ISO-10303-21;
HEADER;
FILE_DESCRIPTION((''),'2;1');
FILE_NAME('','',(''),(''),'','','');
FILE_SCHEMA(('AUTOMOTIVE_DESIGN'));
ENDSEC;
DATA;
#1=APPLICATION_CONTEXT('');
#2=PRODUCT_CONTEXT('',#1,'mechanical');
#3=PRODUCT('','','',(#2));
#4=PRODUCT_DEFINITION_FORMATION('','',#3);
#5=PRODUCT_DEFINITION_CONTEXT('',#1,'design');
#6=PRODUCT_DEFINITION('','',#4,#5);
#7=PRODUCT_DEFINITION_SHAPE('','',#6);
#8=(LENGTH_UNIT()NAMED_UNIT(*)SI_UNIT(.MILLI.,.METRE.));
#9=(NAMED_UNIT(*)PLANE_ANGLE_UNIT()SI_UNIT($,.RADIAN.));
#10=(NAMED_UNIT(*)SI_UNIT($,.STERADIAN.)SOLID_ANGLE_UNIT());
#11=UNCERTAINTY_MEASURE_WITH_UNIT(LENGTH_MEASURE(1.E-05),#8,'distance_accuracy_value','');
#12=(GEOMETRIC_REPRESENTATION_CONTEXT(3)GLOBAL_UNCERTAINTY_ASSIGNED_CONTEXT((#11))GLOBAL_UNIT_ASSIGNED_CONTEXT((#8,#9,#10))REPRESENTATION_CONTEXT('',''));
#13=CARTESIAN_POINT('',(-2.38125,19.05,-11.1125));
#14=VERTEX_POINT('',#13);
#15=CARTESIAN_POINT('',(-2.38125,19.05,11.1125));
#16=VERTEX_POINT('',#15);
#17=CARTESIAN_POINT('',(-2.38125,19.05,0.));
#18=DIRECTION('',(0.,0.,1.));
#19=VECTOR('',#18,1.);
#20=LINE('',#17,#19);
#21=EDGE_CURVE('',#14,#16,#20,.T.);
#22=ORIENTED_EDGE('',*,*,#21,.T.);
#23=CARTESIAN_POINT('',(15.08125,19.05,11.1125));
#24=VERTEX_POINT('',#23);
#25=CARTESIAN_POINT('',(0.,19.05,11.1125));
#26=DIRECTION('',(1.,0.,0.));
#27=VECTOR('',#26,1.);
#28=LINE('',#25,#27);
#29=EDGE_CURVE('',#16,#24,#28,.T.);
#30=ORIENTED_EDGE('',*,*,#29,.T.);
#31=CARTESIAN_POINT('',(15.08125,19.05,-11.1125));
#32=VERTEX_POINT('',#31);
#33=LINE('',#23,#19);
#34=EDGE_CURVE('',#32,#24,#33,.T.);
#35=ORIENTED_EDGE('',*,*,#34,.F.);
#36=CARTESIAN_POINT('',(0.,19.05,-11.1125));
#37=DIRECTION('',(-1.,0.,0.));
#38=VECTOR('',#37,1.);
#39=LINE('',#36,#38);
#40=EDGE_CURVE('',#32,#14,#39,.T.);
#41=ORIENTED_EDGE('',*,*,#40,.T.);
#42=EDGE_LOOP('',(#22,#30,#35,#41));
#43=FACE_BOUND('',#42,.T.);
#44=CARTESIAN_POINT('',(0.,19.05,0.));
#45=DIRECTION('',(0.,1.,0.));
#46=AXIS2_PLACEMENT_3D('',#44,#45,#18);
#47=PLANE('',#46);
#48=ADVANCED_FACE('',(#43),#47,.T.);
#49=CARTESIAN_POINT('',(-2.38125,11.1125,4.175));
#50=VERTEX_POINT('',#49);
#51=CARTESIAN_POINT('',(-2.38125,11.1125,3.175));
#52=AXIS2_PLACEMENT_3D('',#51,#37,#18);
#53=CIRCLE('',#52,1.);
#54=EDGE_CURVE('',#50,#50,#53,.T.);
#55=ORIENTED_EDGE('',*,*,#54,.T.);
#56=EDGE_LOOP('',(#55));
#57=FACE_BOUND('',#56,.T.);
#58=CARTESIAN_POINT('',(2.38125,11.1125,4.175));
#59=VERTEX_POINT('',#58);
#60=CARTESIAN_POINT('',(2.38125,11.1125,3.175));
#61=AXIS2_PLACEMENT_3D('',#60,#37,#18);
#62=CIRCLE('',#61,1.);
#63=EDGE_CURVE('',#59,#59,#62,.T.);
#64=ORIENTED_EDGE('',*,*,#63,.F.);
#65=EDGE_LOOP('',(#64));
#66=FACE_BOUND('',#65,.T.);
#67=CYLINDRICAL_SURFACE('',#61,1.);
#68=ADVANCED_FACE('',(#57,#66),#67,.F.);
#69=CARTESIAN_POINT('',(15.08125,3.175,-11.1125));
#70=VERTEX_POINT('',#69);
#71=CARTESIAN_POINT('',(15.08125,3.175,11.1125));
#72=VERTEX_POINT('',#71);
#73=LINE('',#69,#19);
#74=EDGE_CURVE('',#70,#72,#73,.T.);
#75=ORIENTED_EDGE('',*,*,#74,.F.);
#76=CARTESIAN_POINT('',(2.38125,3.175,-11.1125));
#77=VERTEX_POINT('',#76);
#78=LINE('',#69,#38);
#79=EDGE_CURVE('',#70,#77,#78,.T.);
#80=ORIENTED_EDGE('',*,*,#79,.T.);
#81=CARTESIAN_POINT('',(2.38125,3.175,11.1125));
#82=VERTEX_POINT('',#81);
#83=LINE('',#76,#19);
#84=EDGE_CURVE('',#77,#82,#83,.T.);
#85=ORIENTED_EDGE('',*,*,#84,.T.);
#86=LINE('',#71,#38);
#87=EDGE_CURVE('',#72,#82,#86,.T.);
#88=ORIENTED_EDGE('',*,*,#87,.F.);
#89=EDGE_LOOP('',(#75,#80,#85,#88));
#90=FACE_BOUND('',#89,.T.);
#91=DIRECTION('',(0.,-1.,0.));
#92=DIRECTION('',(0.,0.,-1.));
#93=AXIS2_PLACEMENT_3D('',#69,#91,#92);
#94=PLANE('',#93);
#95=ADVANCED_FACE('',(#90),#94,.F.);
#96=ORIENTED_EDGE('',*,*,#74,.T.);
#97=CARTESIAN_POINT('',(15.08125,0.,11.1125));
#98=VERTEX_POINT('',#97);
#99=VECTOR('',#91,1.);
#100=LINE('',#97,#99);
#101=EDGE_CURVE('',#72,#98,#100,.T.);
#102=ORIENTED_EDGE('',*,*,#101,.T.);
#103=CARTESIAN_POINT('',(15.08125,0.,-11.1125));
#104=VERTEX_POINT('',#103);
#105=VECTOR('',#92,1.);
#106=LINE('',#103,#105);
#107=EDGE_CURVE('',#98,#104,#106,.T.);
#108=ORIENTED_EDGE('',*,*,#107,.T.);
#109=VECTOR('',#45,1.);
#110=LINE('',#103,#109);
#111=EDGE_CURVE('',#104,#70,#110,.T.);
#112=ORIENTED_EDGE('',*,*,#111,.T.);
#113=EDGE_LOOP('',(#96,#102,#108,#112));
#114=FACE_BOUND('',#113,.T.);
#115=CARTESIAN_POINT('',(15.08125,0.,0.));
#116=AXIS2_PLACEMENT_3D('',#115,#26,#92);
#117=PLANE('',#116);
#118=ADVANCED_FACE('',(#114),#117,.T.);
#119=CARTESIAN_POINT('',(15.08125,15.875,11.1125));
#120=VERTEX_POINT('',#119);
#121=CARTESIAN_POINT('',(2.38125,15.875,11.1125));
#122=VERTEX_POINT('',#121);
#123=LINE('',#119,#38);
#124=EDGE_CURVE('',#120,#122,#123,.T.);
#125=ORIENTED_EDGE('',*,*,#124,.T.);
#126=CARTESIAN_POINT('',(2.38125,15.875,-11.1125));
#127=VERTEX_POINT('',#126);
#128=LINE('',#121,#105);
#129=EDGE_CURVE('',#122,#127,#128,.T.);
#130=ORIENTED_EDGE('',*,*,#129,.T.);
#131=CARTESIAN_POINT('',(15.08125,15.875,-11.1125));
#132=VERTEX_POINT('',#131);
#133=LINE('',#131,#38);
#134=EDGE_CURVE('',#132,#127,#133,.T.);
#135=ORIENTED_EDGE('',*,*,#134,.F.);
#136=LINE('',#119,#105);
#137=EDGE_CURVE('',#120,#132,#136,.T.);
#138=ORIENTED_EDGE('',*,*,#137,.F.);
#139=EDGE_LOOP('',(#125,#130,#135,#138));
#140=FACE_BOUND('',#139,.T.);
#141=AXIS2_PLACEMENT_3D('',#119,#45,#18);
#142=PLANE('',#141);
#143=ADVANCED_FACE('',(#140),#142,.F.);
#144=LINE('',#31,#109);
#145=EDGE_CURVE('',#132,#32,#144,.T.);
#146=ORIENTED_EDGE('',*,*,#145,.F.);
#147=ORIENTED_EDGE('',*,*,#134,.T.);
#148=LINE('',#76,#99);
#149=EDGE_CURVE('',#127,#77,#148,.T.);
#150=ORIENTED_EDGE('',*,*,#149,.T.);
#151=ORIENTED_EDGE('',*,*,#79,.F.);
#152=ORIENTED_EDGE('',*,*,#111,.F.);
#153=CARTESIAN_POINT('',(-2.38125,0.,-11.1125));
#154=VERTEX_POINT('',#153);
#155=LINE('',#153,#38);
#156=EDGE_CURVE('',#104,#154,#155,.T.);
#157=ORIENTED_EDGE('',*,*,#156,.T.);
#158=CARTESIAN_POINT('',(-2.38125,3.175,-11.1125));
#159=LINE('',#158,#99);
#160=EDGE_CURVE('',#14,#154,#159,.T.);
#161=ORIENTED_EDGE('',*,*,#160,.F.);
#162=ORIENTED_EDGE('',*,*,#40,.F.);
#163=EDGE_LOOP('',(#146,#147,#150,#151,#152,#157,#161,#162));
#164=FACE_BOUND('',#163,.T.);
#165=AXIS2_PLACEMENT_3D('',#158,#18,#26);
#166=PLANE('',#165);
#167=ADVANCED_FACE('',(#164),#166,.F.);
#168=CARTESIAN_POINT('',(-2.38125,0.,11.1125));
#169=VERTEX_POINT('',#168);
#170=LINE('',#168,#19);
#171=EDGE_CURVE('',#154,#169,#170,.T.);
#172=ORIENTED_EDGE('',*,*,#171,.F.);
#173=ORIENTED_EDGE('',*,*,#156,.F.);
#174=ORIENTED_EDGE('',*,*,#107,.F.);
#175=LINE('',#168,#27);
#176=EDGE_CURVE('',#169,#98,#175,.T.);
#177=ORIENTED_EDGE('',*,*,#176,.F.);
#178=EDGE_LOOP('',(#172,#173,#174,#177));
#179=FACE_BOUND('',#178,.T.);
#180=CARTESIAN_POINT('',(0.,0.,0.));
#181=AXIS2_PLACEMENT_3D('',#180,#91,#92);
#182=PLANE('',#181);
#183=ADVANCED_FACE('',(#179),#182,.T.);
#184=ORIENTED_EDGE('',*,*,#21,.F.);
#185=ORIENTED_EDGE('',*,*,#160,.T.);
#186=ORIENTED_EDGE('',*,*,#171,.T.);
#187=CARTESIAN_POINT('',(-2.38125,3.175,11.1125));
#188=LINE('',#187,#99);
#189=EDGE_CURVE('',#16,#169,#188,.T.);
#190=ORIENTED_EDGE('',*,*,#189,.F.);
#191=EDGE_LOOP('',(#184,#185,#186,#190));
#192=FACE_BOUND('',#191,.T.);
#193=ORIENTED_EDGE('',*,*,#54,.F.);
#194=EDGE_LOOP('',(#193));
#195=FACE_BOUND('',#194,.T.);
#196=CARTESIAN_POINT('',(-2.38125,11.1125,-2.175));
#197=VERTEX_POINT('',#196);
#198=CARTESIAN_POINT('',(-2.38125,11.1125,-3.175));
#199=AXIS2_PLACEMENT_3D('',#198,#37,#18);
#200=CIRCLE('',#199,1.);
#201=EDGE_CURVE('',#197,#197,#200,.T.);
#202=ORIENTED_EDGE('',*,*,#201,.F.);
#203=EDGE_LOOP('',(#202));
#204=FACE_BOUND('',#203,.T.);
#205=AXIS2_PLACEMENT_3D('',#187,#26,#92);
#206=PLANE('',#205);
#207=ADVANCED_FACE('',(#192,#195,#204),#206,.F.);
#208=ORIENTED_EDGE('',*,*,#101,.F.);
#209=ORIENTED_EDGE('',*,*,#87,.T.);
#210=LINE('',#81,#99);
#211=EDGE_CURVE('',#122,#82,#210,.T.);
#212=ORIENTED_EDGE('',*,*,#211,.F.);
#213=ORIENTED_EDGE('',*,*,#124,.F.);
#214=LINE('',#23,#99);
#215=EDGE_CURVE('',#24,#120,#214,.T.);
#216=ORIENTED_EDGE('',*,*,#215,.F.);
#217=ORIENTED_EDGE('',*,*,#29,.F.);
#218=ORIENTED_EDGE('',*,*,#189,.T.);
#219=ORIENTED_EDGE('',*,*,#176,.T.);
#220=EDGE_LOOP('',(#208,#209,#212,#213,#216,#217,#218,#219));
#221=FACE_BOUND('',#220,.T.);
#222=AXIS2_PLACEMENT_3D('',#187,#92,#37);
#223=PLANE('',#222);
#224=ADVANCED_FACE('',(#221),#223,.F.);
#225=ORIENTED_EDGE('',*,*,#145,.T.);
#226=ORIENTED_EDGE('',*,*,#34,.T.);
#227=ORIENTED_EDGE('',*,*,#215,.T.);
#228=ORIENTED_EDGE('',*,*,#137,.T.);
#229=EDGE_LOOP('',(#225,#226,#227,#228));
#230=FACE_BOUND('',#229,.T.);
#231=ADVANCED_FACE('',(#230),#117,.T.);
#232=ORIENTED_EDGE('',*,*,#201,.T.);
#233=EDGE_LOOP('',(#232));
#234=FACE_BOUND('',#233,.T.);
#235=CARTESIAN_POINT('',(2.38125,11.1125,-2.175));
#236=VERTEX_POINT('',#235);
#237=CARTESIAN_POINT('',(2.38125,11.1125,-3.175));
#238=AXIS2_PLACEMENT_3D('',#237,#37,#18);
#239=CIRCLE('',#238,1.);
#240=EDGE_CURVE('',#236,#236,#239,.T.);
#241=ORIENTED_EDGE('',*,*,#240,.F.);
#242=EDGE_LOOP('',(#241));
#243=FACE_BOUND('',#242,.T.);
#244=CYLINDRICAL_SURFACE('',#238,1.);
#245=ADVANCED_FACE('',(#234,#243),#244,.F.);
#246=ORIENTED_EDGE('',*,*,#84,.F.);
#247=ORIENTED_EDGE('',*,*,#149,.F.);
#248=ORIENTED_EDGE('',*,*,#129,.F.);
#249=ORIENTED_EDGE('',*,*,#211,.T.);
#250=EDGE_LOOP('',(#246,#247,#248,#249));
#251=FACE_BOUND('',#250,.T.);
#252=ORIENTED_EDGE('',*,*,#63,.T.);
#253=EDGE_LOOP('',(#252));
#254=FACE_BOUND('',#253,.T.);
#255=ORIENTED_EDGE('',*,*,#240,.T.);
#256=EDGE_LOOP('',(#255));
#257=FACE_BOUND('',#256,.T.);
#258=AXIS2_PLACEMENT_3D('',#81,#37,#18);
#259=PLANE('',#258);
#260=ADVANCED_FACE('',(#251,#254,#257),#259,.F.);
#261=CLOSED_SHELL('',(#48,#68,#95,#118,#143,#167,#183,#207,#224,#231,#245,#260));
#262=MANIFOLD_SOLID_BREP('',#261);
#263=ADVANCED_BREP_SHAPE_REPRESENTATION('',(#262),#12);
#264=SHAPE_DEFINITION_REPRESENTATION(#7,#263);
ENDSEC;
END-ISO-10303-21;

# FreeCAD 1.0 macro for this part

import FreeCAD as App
import Part
import Sketcher

V = App.Vector
Q = App.Units.Quantity

doc = App.newDocument("Part")
body = doc.addObject("PartDesign::Body", "Body")

sketch1 = doc.addObject("Sketcher::SketchObject", "Sketch")
body.addObject(sketch1)
sketch1.AttachmentSupport = (doc.XZ_Plane, [""])
sketch1.MapMode = "FlatFace"
sketch1.addGeometry([
    Part.LineSegment(V(-2.38125, -11.1125, 0), V(-2.38125, 11.1125, 0)),
    Part.LineSegment(V(-2.38125, 11.1125, 0), V(2.38125, 11.1125, 0)),
    Part.LineSegment(V(2.38125, 11.1125, 0), V(2.38125, -11.1125, 0)),
    Part.LineSegment(V(2.38125, -11.1125, 0), V(-2.38125, -11.1125, 0)),
], False)
sketch1.addConstraint([
    Sketcher.Constraint("Coincident", 0, 2, 1, 1),
    Sketcher.Constraint("Coincident", 1, 2, 2, 1),
    Sketcher.Constraint("Coincident", 2, 2, 3, 1),
    Sketcher.Constraint("Coincident", 3, 2, 0, 1),
    Sketcher.Constraint("Vertical", 0),
    Sketcher.Constraint("Horizontal", 1),
    Sketcher.Constraint("Vertical", 2),
    Sketcher.Constraint("Horizontal", 3),
    Sketcher.Constraint("Symmetric", 0, 2, 2, 2, -1, 1),
    Sketcher.Constraint("DistanceX", 1, 1, 1, 2, Q("0.1875 in")),
    Sketcher.Constraint("DistanceY", 0, 1, 0, 2, Q("0.875 in")),
])
pad1 = doc.addObject("PartDesign::Pad", "Pad")
body.addObject(pad1)
pad1.Profile = sketch1
pad1.Length = Q("0.125 in")
pad1.Reversed = True

sketch2 = doc.addObject("Sketcher::SketchObject", "Sketch001")
body.addObject(sketch2)
sketch2.AttachmentSupport = (doc.XZ_Plane, [""])
sketch2.MapMode = "FlatFace"
sketch2.AttachmentOffset = App.Placement(V(0, 0, -0.125 * 25.4), App.Rotation())
sketch2.addGeometry([
    Part.LineSegment(V(-2.38125, -11.1125, 0), V(-2.38125, 11.1125, 0)),
    Part.LineSegment(V(-2.38125, 11.1125, 0), V(2.38125, 11.1125, 0)),
    Part.LineSegment(V(2.38125, 11.1125, 0), V(2.38125, -11.1125, 0)),
    Part.LineSegment(V(2.38125, -11.1125, 0), V(-2.38125, -11.1125, 0)),
], False)
sketch2.addConstraint([
    Sketcher.Constraint("Coincident", 0, 2, 1, 1),
    Sketcher.Constraint("Coincident", 1, 2, 2, 1),
    Sketcher.Constraint("Coincident", 2, 2, 3, 1),
    Sketcher.Constraint("Coincident", 3, 2, 0, 1),
    Sketcher.Constraint("Vertical", 0),
    Sketcher.Constraint("Horizontal", 1),
    Sketcher.Constraint("Vertical", 2),
    Sketcher.Constraint("Horizontal", 3),
    Sketcher.Constraint("Symmetric", 0, 2, 2, 2, -1, 1),
    Sketcher.Constraint("DistanceX", 1, 1, 1, 2, Q("0.1875 in")),
    Sketcher.Constraint("DistanceY", 0, 1, 0, 2, Q("0.875 in")),
])
pad2 = doc.addObject("PartDesign::Pad", "Pad001")
body.addObject(pad2)
pad2.Profile = sketch2
pad2.Length = Q("0.625 in")
pad2.Reversed = True

sketch3 = doc.addObject("Sketcher::SketchObject", "Sketch002")
body.addObject(sketch3)
sketch3.AttachmentSupport = (doc.YZ_Plane, [""])
sketch3.MapMode = "FlatFace"
sketch3.AttachmentOffset = App.Placement(V(0, 0, -0.09375 * 25.4), App.Rotation())
sketch3.addGeometry([
    Part.Circle(V(11.1125, 3.175, 0), V(0, 0, 1), 1),
    Part.Circle(V(11.1125, -3.175, 0), V(0, 0, 1), 1),
], False)
sketch3.addConstraint([
    Sketcher.Constraint("Equal", 0, 1),
    Sketcher.Constraint("Symmetric", 0, 3, 1, 3, -1),
    Sketcher.Constraint("Diameter", 0, 2.0),
    Sketcher.Constraint("DistanceY", 1, 3, 0, 3, Q("0.25 in")),
    Sketcher.Constraint("DistanceX", -1, 1, 0, 3, Q("0.4375 in")),
])
pocket1 = doc.addObject("PartDesign::Pocket", "Pocket")
body.addObject(pocket1)
pocket1.Profile = sketch3
pocket1.Type = "ThroughAll"
pocket1.Reversed = True

sketch4 = doc.addObject("Sketcher::SketchObject", "Sketch003")
body.addObject(sketch4)
sketch4.AttachmentSupport = (doc.YZ_Plane, [""])
sketch4.MapMode = "FlatFace"
sketch4.AttachmentOffset = App.Placement(V(0, 0, 0.09375 * 25.4), App.Rotation())
sketch4.addGeometry([
    Part.LineSegment(V(19.05, 11.1125, 0), V(15.875, 11.1125, 0)),
    Part.LineSegment(V(15.875, 11.1125, 0), V(15.875, -11.1125, 0)),
    Part.LineSegment(V(15.875, -11.1125, 0), V(19.05, -11.1125, 0)),
    Part.LineSegment(V(19.05, -11.1125, 0), V(19.05, 11.1125, 0)),
    Part.LineSegment(V(3.175, 11.1125, 0), V(0, 11.1125, 0)),
    Part.LineSegment(V(0, 11.1125, 0), V(0, -11.1125, 0)),
    Part.LineSegment(V(0, -11.1125, 0), V(3.175, -11.1125, 0)),
    Part.LineSegment(V(3.175, -11.1125, 0), V(3.175, 11.1125, 0)),
], False)
sketch4.addConstraint([
    Sketcher.Constraint("Coincident", 0, 2, 1, 1),
    Sketcher.Constraint("Coincident", 1, 2, 2, 1),
    Sketcher.Constraint("Coincident", 2, 2, 3, 1),
    Sketcher.Constraint("Coincident", 3, 2, 0, 1),
    Sketcher.Constraint("Coincident", 4, 2, 5, 1),
    Sketcher.Constraint("Coincident", 5, 2, 6, 1),
    Sketcher.Constraint("Coincident", 6, 2, 7, 1),
    Sketcher.Constraint("Coincident", 7, 2, 4, 1),
    Sketcher.Constraint("Horizontal", 0),
    Sketcher.Constraint("Vertical", 1),
    Sketcher.Constraint("Horizontal", 2),
    Sketcher.Constraint("Vertical", 3),
    Sketcher.Constraint("Horizontal", 4),
    Sketcher.Constraint("Vertical", 5),
    Sketcher.Constraint("Horizontal", 6),
    Sketcher.Constraint("Vertical", 7),
    Sketcher.Constraint("Symmetric", 4, 2, 5, 2, -1, 1),
    Sketcher.Constraint("Horizontal", 3, 2, 4, 2),
    Sketcher.Constraint("Horizontal", 2, 2, 5, 2),
    Sketcher.Constraint("Equal", 2, 4),
    Sketcher.Constraint("DistanceX", 6, 2, 1, 2, Q("0.5 in")),
    Sketcher.Constraint("DistanceX", 0, 2, 0, 1, Q("0.125 in")),
    Sketcher.Constraint("DistanceY", 1, 2, 1, 1, Q("0.875 in")),
])
pad3 = doc.addObject("PartDesign::Pad", "Pad002")
body.addObject(pad3)
pad3.Profile = sketch4
pad3.Length = Q("0.5 in")

doc.recompute()
